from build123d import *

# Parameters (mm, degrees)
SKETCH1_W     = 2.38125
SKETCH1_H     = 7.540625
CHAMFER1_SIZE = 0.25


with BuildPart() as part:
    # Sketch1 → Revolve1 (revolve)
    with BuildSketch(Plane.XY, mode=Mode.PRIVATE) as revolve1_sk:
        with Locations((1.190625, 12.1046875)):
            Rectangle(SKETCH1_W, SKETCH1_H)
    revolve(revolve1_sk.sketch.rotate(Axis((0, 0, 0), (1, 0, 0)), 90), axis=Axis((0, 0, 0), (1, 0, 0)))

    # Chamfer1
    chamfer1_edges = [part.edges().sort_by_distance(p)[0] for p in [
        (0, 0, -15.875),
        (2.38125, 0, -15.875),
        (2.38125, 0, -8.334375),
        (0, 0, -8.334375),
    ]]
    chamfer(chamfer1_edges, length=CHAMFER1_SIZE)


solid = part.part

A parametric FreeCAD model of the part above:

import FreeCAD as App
import Part
import Sketcher

V = App.Vector
Q = App.Units.Quantity


def edges_at(feature, points):
    """Names of the edges that pass closest to the given points."""
    edges = feature.Shape.Edges
    near = lambda p: min(range(len(edges)), key=lambda i: edges[i].distToShape(Part.Vertex(*p))[0])
    return sorted({f"Edge{near(p) + 1}" for p in points})


def add_polygon(sketch, points):
    """Adds a closed chain of lines whose ends are joined by coincident constraints."""
    first, n = sketch.GeometryCount, len(points)
    for a, b in zip(points, points[1:] + points[:1]):
        sketch.addGeometry(Part.LineSegment(App.Vector(*a, 0), App.Vector(*b, 0)), False)
    for i in range(n):
        sketch.addConstraint(Sketcher.Constraint("Coincident", first + i, 2, first + (i + 1) % n, 1))

doc = App.newDocument("Part")
body = doc.addObject("PartDesign::Body", "Body")

# Sketch on XY plane
sketch1 = body.newObject("Sketcher::SketchObject", "Sketch")
sketch1.AttachmentSupport = (doc.getObject("XY_Plane"), [""])
sketch1.MapMode = "FlatFace"
add_polygon(sketch1, [(0, 15.9), (0, 8.3), (2.4, 8.3), (2.4, 15.9)])  # lines 0-3
sketch1.addConstraint([
    Sketcher.Constraint("Vertical", 0),
    Sketcher.Constraint("Horizontal", 1),
    Sketcher.Constraint("Vertical", 2),
    Sketcher.Constraint("Horizontal", 3),
    Sketcher.Constraint("PointOnObject", 0, 2, -2),
    Sketcher.Constraint("DistanceX", 1, 1, 1, 2, Q("0.09375 in")),
    Sketcher.Constraint("DistanceY", 0, 2, 0, 1, Q("0.296875 in")),
    Sketcher.Constraint("DistanceY", -1, 1, 0, 2, Q("0.328125 in")),
])
revolution = body.newObject("PartDesign::Revolution", "Revolution")
revolution.Profile = sketch1
revolution.ReferenceAxis = (sketch1, ["H_Axis"])
revolution.Angle = 360
doc.recompute()

chamfer = body.newObject("PartDesign::Chamfer", "Chamfer")
chamfer.Base = (revolution, edges_at(revolution, [
    (0, 0, -15.875),
    (2.381, 0, -15.875),
    (2.381, 0, -8.334),
    (0, 0, -8.334),
]))
chamfer.Size = 0.25

doc.recompute()
